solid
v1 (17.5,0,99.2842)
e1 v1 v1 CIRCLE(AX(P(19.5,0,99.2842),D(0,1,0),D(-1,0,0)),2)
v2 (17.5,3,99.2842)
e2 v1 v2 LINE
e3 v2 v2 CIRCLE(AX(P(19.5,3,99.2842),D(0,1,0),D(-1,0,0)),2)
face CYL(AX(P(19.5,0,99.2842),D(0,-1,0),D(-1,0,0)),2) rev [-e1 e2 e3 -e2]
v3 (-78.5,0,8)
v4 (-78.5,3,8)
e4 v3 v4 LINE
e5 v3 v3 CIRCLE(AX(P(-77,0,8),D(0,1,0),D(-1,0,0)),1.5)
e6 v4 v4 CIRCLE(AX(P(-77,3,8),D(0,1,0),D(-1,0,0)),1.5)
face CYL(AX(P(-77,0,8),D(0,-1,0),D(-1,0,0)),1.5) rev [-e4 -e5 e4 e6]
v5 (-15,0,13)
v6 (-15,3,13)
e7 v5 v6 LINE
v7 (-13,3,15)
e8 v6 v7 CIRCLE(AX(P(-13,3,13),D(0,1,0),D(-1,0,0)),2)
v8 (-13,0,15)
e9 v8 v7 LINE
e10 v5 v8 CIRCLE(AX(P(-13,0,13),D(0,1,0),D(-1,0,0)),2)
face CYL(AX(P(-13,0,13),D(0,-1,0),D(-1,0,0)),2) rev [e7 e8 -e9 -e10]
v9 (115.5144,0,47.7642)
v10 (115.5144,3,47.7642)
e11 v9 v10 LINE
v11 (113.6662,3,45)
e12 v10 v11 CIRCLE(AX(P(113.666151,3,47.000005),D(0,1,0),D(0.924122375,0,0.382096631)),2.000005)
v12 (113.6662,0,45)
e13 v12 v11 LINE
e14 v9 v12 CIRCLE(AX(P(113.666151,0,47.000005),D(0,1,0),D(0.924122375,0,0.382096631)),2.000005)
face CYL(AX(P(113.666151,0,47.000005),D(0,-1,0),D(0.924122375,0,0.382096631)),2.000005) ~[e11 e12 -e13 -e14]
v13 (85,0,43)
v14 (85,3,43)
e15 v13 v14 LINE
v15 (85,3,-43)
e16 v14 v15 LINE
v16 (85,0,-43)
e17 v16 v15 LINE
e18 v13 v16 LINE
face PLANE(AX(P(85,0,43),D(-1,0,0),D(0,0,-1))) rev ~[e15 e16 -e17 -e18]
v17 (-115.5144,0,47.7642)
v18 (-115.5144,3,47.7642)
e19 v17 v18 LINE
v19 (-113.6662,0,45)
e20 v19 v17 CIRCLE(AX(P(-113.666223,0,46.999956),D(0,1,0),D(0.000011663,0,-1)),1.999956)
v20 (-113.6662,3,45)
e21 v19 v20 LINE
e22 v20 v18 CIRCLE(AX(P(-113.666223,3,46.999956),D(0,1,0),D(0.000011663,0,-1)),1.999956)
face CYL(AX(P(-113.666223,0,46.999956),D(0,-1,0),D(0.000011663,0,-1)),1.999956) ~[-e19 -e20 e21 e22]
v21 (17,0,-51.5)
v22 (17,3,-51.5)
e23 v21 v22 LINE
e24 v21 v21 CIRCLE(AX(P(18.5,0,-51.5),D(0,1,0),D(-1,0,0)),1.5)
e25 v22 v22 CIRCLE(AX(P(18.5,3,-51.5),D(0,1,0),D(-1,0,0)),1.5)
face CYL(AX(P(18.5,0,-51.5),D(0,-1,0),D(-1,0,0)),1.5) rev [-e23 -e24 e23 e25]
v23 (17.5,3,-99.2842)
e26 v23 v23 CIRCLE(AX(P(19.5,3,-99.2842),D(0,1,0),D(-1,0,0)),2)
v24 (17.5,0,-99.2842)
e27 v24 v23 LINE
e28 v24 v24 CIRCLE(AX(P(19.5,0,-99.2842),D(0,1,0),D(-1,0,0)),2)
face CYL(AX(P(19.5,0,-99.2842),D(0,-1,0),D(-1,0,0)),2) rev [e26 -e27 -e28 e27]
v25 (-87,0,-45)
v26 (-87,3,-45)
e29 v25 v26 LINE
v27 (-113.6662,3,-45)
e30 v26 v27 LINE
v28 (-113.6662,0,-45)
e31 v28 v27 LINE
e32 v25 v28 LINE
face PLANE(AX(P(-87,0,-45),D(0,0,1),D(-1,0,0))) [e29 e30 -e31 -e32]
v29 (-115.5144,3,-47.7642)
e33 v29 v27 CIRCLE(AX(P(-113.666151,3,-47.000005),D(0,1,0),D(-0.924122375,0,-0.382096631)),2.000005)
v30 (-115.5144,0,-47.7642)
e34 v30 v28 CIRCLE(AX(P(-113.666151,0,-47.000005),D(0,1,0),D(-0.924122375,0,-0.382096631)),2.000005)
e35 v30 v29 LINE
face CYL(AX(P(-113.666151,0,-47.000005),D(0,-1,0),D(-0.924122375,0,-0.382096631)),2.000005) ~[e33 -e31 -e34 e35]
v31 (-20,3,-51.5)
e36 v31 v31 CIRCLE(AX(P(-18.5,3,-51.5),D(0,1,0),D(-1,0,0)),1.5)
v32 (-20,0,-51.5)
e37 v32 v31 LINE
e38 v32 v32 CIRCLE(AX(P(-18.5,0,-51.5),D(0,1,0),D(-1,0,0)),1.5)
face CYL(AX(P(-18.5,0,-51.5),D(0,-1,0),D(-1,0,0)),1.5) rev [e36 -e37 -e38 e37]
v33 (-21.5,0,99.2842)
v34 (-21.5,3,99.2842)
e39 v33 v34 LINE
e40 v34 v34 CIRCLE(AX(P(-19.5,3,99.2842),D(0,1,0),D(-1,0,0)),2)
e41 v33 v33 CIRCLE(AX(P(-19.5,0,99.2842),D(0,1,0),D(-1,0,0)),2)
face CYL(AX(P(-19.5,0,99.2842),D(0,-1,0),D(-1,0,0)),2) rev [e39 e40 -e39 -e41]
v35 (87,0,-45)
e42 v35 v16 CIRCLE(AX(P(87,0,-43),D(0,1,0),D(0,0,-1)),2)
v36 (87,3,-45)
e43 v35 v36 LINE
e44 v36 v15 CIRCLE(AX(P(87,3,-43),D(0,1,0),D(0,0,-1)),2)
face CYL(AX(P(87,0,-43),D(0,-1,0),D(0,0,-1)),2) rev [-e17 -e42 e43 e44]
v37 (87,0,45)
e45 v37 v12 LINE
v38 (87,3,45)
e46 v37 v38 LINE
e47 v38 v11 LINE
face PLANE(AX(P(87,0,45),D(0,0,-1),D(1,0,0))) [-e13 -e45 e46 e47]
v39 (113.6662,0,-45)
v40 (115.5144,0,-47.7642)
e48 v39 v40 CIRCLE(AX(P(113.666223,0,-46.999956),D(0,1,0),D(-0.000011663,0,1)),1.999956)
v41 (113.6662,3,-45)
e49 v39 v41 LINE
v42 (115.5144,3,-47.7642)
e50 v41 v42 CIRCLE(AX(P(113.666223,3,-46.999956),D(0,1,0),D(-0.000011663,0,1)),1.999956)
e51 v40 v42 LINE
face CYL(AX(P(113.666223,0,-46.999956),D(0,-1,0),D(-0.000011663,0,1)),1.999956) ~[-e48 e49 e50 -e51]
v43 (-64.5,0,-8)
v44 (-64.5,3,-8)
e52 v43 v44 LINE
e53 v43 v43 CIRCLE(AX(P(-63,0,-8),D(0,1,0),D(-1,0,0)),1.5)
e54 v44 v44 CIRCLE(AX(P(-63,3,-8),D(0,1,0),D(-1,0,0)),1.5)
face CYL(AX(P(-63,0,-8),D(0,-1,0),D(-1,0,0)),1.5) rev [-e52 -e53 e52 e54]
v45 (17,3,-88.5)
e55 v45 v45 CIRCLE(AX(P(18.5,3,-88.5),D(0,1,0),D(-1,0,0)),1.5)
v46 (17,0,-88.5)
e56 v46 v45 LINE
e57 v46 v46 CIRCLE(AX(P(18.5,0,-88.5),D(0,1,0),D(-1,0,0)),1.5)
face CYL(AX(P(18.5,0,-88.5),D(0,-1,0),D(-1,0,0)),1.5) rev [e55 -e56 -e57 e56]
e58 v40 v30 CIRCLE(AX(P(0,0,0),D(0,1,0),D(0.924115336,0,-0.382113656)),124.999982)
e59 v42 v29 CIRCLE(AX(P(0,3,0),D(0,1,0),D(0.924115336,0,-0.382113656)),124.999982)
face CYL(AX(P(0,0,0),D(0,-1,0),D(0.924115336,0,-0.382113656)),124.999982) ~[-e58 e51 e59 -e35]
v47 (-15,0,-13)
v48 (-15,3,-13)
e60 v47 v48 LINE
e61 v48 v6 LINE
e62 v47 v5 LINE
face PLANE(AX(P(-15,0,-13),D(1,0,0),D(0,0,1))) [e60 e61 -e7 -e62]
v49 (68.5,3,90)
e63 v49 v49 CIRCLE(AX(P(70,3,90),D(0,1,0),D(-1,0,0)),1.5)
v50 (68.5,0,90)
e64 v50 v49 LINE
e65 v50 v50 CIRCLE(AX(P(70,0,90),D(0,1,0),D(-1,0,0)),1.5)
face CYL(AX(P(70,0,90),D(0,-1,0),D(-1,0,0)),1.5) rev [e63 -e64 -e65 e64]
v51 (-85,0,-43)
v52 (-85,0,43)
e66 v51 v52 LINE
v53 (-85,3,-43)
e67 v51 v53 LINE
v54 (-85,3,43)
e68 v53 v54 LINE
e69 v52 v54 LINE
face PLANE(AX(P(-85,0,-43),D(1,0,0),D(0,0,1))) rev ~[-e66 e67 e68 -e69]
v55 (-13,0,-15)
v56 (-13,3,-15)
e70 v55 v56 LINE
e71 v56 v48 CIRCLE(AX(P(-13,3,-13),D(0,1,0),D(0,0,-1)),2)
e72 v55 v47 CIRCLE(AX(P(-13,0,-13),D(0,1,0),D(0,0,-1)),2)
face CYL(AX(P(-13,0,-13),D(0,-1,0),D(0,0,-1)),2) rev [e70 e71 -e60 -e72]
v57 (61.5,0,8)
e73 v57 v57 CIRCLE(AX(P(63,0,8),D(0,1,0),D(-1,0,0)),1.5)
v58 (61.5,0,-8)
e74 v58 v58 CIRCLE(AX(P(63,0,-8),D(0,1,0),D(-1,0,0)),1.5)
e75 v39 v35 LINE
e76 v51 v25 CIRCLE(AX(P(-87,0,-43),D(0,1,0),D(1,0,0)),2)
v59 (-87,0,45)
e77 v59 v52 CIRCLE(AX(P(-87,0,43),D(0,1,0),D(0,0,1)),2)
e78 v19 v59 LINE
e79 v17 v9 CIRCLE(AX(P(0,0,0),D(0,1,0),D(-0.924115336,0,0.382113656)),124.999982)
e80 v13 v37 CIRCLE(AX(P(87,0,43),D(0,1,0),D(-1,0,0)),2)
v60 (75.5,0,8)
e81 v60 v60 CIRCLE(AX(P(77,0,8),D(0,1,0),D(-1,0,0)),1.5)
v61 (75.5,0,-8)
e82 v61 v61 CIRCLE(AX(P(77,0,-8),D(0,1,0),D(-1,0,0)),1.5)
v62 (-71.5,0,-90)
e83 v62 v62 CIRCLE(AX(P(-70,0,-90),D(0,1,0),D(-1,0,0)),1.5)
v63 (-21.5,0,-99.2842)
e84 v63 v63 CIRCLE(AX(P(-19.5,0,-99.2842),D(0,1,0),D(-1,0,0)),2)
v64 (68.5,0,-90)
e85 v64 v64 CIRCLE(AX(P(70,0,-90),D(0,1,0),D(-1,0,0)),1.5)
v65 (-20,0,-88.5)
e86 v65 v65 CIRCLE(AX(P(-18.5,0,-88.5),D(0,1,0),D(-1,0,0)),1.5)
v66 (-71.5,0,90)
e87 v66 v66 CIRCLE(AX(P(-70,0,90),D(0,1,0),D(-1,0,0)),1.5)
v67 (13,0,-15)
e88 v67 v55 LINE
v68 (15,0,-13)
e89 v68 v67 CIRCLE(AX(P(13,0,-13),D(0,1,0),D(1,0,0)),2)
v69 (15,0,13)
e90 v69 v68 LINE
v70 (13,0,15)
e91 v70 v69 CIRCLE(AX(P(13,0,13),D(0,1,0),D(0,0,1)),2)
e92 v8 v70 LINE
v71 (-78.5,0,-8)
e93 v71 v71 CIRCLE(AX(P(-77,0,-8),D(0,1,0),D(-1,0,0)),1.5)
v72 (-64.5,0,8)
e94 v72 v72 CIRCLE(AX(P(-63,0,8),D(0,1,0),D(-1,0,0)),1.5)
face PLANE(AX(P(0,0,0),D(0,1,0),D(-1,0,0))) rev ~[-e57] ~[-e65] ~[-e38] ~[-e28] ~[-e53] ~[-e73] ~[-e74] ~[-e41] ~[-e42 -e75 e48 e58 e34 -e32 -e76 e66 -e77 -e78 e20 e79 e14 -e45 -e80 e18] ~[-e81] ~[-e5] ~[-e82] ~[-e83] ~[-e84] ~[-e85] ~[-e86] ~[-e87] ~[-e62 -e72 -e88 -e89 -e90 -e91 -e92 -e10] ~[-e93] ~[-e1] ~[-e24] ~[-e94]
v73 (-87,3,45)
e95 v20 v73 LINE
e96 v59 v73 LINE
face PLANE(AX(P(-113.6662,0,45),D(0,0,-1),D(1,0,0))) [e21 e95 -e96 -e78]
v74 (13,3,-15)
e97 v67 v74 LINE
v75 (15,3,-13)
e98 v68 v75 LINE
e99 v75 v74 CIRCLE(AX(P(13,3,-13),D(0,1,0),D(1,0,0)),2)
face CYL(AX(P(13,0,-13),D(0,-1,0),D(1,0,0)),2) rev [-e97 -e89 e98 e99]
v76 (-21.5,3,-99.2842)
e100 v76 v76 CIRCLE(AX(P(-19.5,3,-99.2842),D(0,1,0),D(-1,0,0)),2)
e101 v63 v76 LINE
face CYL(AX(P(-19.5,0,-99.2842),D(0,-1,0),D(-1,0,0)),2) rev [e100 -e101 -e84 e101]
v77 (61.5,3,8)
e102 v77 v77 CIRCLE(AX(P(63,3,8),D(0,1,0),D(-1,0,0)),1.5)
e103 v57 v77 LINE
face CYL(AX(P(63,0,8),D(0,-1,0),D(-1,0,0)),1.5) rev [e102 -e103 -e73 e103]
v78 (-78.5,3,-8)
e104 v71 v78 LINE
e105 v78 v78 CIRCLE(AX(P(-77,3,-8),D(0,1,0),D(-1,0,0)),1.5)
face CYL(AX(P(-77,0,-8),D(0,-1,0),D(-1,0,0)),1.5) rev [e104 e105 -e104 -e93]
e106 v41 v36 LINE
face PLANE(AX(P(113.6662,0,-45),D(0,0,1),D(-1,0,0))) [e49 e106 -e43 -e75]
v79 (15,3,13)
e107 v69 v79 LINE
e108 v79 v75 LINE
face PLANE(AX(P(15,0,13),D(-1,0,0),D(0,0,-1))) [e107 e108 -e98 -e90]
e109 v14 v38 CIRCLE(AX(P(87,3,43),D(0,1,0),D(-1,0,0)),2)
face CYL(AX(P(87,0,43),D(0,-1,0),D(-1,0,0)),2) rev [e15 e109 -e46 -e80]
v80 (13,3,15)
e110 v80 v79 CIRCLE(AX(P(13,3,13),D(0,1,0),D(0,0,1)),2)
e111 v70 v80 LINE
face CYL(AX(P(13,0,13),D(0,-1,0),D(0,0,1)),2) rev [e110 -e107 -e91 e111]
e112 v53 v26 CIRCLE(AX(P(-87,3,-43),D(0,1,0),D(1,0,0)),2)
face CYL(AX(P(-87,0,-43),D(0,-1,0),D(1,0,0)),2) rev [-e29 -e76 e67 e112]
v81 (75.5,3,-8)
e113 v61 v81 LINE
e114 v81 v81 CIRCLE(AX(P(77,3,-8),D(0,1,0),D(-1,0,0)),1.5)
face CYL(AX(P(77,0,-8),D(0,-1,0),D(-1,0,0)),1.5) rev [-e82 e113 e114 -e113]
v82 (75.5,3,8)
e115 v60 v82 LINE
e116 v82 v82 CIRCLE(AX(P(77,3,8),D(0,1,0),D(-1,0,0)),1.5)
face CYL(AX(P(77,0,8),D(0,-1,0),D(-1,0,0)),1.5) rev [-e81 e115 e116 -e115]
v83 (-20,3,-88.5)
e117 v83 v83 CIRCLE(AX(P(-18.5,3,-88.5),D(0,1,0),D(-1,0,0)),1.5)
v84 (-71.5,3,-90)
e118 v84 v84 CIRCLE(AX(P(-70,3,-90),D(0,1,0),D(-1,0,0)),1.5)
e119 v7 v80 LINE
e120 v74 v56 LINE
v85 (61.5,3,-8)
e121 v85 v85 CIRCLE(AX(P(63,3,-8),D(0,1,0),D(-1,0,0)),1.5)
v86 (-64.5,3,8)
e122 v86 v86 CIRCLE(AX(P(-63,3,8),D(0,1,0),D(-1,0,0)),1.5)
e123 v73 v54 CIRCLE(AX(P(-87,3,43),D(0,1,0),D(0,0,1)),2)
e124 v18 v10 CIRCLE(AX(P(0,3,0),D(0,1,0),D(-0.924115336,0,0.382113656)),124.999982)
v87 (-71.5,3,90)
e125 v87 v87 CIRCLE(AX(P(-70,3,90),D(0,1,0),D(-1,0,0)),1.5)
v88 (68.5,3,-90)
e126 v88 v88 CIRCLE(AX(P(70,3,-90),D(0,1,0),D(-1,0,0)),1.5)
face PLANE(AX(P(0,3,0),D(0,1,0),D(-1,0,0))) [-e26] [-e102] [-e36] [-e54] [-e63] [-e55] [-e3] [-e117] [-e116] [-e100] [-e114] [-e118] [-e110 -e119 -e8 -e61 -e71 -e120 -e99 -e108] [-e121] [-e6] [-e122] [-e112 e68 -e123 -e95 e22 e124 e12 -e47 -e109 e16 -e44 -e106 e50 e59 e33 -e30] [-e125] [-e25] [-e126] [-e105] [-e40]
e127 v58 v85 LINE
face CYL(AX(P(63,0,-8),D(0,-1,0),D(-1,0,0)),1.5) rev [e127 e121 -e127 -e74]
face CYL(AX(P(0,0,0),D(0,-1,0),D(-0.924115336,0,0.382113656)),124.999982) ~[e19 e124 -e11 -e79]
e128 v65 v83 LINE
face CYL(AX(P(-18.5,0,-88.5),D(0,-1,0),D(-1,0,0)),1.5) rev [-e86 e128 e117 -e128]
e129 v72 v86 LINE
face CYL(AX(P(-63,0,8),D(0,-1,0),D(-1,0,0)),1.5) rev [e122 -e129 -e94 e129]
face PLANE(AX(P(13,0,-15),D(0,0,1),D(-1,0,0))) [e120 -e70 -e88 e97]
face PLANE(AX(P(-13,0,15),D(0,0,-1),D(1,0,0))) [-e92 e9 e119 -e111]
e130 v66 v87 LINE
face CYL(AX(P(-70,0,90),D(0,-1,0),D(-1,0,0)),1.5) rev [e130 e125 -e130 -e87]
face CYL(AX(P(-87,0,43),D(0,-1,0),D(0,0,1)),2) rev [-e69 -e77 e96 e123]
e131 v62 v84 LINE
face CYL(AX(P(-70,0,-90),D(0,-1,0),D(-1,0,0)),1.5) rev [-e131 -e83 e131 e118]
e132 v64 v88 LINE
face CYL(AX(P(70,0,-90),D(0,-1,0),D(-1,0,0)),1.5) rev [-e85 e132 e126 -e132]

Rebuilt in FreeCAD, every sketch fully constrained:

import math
import FreeCAD as App
import Part
import Sketcher
from FreeCAD import Vector

doc = App.newDocument("Part")
body = doc.addObject("PartDesign::Body", "Body")

# Sketch on XZ plane
sketch1 = doc.addObject("Sketcher::SketchObject", "Sketch")
body.addObject(sketch1)
sketch1.AttachmentSupport = (doc.XZ_Plane, [""])
sketch1.MapMode = "FlatFace"
sketch1.addGeometry([
    Part.ArcOfCircle(Part.Circle(Vector(87, 43, 0), Vector(0, 0, 1), 2), math.radians(90), math.radians(180)),  # 0
    Part.LineSegment(Vector(85, 43, 0), Vector(85, -43, 0)),  # 1
    Part.ArcOfCircle(Part.Circle(Vector(87, -43, 0), Vector(0, 0, 1), 2), math.radians(180), math.radians(270)),  # 2
    Part.LineSegment(Vector(87, -45, 0), Vector(113.6662, -45, 0)),  # 3
    Part.ArcOfCircle(Part.Circle(Vector(113.6662, -47, 0), Vector(0, 0, 1), 2), math.radians(-22.464282), math.radians(90)),  # 4
    Part.ArcOfCircle(Part.Circle(Vector(0, 0, 0), Vector(0, 0, 1), 124.999982), math.radians(-157.535331), math.radians(-22.464669)),  # 5
    Part.ArcOfCircle(Part.Circle(Vector(-113.6662, -47, 0), Vector(0, 0, 1), 1.999961), math.radians(90), math.radians(202.464282)),  # 6
    Part.LineSegment(Vector(-113.6662, -45, 0), Vector(-87, -45, 0)),  # 7
    Part.ArcOfCircle(Part.Circle(Vector(-87, -43, 0), Vector(0, 0, 1), 2), math.radians(-90), math.radians(0)),  # 8
    Part.LineSegment(Vector(-85, -43, 0), Vector(-85, 43, 0)),  # 9
    Part.ArcOfCircle(Part.Circle(Vector(-87, 43, 0), Vector(0, 0, 1), 2), math.radians(0), math.radians(90)),  # 10
    Part.LineSegment(Vector(-87, 45, 0), Vector(-113.6662, 45, 0)),  # 11
    Part.ArcOfCircle(Part.Circle(Vector(-113.6662, 47, 0), Vector(0, 0, 1), 2), math.radians(157.535718), math.radians(270)),  # 12
    Part.ArcOfCircle(Part.Circle(Vector(0, 0, 0), Vector(0, 0, 1), 124.999982), math.radians(22.464669), math.radians(157.535331)),  # 13
    Part.ArcOfCircle(Part.Circle(Vector(113.6662, 47, 0), Vector(0, 0, 1), 1.999961), math.radians(-90), math.radians(22.464282)),  # 14
    Part.LineSegment(Vector(113.6662, 45, 0), Vector(87, 45, 0)),  # 15
    Part.Circle(Vector(70, -90, 0), Vector(0, 0, 1), 1.5),  # 16
    Part.Circle(Vector(19.5, -99.2842, 0), Vector(0, 0, 1), 2),  # 17
    Part.Circle(Vector(18.5, -88.5, 0), Vector(0, 0, 1), 1.5),  # 18
    Part.Circle(Vector(77, -8, 0), Vector(0, 0, 1), 1.5),  # 19
    Part.Circle(Vector(63, -8, 0), Vector(0, 0, 1), 1.5),  # 20
    Part.Circle(Vector(18.5, -51.5, 0), Vector(0, 0, 1), 1.5),  # 21
    Part.Circle(Vector(-19.5, -99.2842, 0), Vector(0, 0, 1), 2),  # 22
    Part.Circle(Vector(-18.5, -88.5, 0), Vector(0, 0, 1), 1.5),  # 23
    Part.Circle(Vector(-70, -90, 0), Vector(0, 0, 1), 1.5),  # 24
    Part.Circle(Vector(-18.5, -51.5, 0), Vector(0, 0, 1), 1.5),  # 25
    Part.Circle(Vector(-63, -8, 0), Vector(0, 0, 1), 1.5),  # 26
    Part.Circle(Vector(-77, -8, 0), Vector(0, 0, 1), 1.5),  # 27
    Part.Circle(Vector(77, 8, 0), Vector(0, 0, 1), 1.5),  # 28
    Part.Circle(Vector(63, 8, 0), Vector(0, 0, 1), 1.5),  # 29
    Part.LineSegment(Vector(13, 15, 0), Vector(-13, 15, 0)),  # 30
    Part.ArcOfCircle(Part.Circle(Vector(-13, 13, 0), Vector(0, 0, 1), 2), math.radians(90), math.radians(180)),  # 31
    Part.LineSegment(Vector(-15, 13, 0), Vector(-15, -13, 0)),  # 32
    Part.ArcOfCircle(Part.Circle(Vector(-13, -13, 0), Vector(0, 0, 1), 2), math.radians(180), math.radians(270)),  # 33
    Part.LineSegment(Vector(-13, -15, 0), Vector(13, -15, 0)),  # 34
    Part.ArcOfCircle(Part.Circle(Vector(13, -13, 0), Vector(0, 0, 1), 2), math.radians(-90), math.radians(0)),  # 35
    Part.LineSegment(Vector(15, -13, 0), Vector(15, 13, 0)),  # 36
    Part.ArcOfCircle(Part.Circle(Vector(13, 13, 0), Vector(0, 0, 1), 2), math.radians(0), math.radians(90)),  # 37
    Part.Circle(Vector(70, 90, 0), Vector(0, 0, 1), 1.5),  # 38
    Part.Circle(Vector(19.5, 99.2842, 0), Vector(0, 0, 1), 2),  # 39
    Part.Circle(Vector(-63, 8, 0), Vector(0, 0, 1), 1.5),  # 40
    Part.Circle(Vector(-77, 8, 0), Vector(0, 0, 1), 1.5),  # 41
    Part.Circle(Vector(-19.5, 99.2842, 0), Vector(0, 0, 1), 2),  # 42
    Part.Circle(Vector(-70, 90, 0), Vector(0, 0, 1), 1.5),  # 43
], False)
sketch1.addConstraint([
    Sketcher.Constraint("Tangent", 0, 2, 1, 1),
    Sketcher.Constraint("Tangent", 1, 2, 2, 1),
    Sketcher.Constraint("Tangent", 2, 2, 3, 1),
    Sketcher.Constraint("Tangent", 3, 2, 4, 2),
    Sketcher.Constraint("Tangent", 4, 1, 5, 2),
    Sketcher.Constraint("Tangent", 5, 1, 6, 2),
    Sketcher.Constraint("Tangent", 6, 1, 7, 1),
    Sketcher.Constraint("Tangent", 7, 2, 8, 1),
    Sketcher.Constraint("Tangent", 8, 2, 9, 1),
    Sketcher.Constraint("Tangent", 9, 2, 10, 1),
    Sketcher.Constraint("Tangent", 10, 2, 11, 1),
    Sketcher.Constraint("Tangent", 11, 2, 12, 2),
    Sketcher.Constraint("Tangent", 12, 1, 13, 2),
    Sketcher.Constraint("Tangent", 13, 1, 14, 2),
    Sketcher.Constraint("Tangent", 14, 1, 15, 1),
    Sketcher.Constraint("Tangent", 15, 2, 0, 1),
    Sketcher.Constraint("Tangent", 30, 2, 31, 1),
    Sketcher.Constraint("Tangent", 31, 2, 32, 1),
    Sketcher.Constraint("Tangent", 32, 2, 33, 1),
    Sketcher.Constraint("Tangent", 33, 2, 34, 1),
    Sketcher.Constraint("Tangent", 34, 2, 35, 1),
    Sketcher.Constraint("Tangent", 35, 2, 36, 1),
    Sketcher.Constraint("Tangent", 36, 2, 37, 1),
    Sketcher.Constraint("Tangent", 37, 2, 30, 1),
    Sketcher.Constraint("Vertical", 1),
    Sketcher.Constraint("Horizontal", 3),
    Sketcher.Constraint("Horizontal", 7),
    Sketcher.Constraint("Vertical", 9),
    Sketcher.Constraint("Horizontal", 11),
    Sketcher.Constraint("Horizontal", 15),
    Sketcher.Constraint("Horizontal", 30),
    Sketcher.Constraint("Vertical", 32),
    Sketcher.Constraint("Horizontal", 34),
    Sketcher.Constraint("Vertical", 36),
    Sketcher.Constraint("Coincident", 5, 3, -1, 1),
    Sketcher.Constraint("Coincident", 13, 3, -1, 1),
    Sketcher.Constraint("Equal", 0, 2),
    Sketcher.Constraint("Equal", 2, 4),
    Sketcher.Constraint("Equal", 4, 6),
    Sketcher.Constraint("Equal", 6, 8),
    Sketcher.Constraint("Equal", 8, 10),
    Sketcher.Constraint("Equal", 10, 12),
    Sketcher.Constraint("Equal", 5, 13),
    Sketcher.Constraint("Equal", 12, 14),
    Sketcher.Constraint("Equal", 14, 17),
    Sketcher.Constraint("Equal", 16, 18),
    Sketcher.Constraint("Equal", 18, 19),
    Sketcher.Constraint("Equal", 19, 20),
    Sketcher.Constraint("Equal", 20, 21),
    Sketcher.Constraint("Equal", 17, 22),
    Sketcher.Constraint("Equal", 21, 23),
    Sketcher.Constraint("Equal", 23, 24),
    Sketcher.Constraint("Equal", 24, 25),
    Sketcher.Constraint("Equal", 25, 26),
    Sketcher.Constraint("Equal", 26, 27),
    Sketcher.Constraint("Equal", 27, 28),
    Sketcher.Constraint("Equal", 28, 29),
    Sketcher.Constraint("Equal", 22, 31),
    Sketcher.Constraint("Equal", 31, 33),
    Sketcher.Constraint("Equal", 33, 35),
    Sketcher.Constraint("Equal", 35, 37),
    Sketcher.Constraint("Equal", 29, 38),
    Sketcher.Constraint("Equal", 37, 39),
    Sketcher.Constraint("Equal", 38, 40),
    Sketcher.Constraint("Equal", 40, 41),
    Sketcher.Constraint("Equal", 39, 42),
    Sketcher.Constraint("Equal", 41, 43),
    Sketcher.Constraint("Symmetric", 0, 3, 8, 3, -1, 1),
    Sketcher.Constraint("Symmetric", 27, 3, 28, 3, -1, 1),
    Sketcher.Constraint("Symmetric", 26, 3, 29, 3, -1, 1),
    Sketcher.Constraint("Symmetric", 31, 3, 35, 3, -1, 1),
    Sketcher.Constraint("Symmetric", 24, 3, 38, 3, -1, 1),
    Sketcher.Constraint("Symmetric", 22, 3, 39, 3, -1, 1),
    Sketcher.Constraint("Symmetric", 20, 3, 40, 3, -1, 1),
    Sketcher.Constraint("Symmetric", 19, 3, 41, 3, -1, 1),
    Sketcher.Constraint("Symmetric", 17, 3, 42, 3, -1, 1),
    Sketcher.Constraint("Symmetric", 16, 3, 43, 3, -1, 1),
    Sketcher.Constraint("Symmetric", 17, 3, 22, 3, -2),
    Sketcher.Constraint("Symmetric", 18, 3, 23, 3, -2),
    Sketcher.Constraint("Symmetric", 16, 3, 24, 3, -2),
    Sketcher.Constraint("Symmetric", 21, 3, 25, 3, -2),
    Sketcher.Constraint("Symmetric", 20, 3, 26, 3, -2),
    Sketcher.Constraint("Symmetric", 19, 3, 27, 3, -2),
    Sketcher.Constraint("Horizontal", 4, 3, 6, 3),
    Sketcher.Constraint("Horizontal", 0, 3, 10, 3),
    Sketcher.Constraint("Horizontal", 19, 3, 20, 3),
    Sketcher.Constraint("Vertical", 18, 3, 21, 3),
    Sketcher.Constraint("Equal", 34, 32),
    Sketcher.Constraint("Diameter", 16, 3.0),
    Sketcher.Constraint("Diameter", 17, 4.0),
    Sketcher.Constraint("Radius", 5, 125.0),
    Sketcher.Constraint("DistanceX", 30, 2, 30, 1, 26.0),
    Sketcher.Constraint("DistanceY", 1, 2, 1, 1, 86.0),
    Sketcher.Constraint("DistanceX", -1, 1, 0, 3, 87.0),
    Sketcher.Constraint("DistanceX", -1, 1, 16, 3, 70.0),
    Sketcher.Constraint("DistanceY", 16, 3, -1, 1, 90.0),
    Sketcher.Constraint("DistanceX", -1, 1, 19, 3, 77.0),
    Sketcher.Constraint("DistanceY", 19, 3, -1, 1, 8.0),
    Sketcher.Constraint("DistanceX", -1, 1, 20, 3, 63.0),
    Sketcher.Constraint("DistanceX", 18, 3, 17, 3, 1.0),
    Sketcher.Constraint("DistanceY", 18, 3, 21, 3, 37.0),
    Sketcher.Constraint("DistanceX", 22, 3, 17, 3, 39.0),
    Sketcher.Constraint("DistanceY", 18, 3, -1, 1, 88.5),
    Sketcher.Constraint("DistanceY", 17, 3, -1, 1, 99.2842),
])
pad1 = doc.addObject("PartDesign::Pad", "Pad")
body.addObject(pad1)
pad1.Profile = sketch1
pad1.Length = 3
pad1.Reversed = True

doc.recompute()
